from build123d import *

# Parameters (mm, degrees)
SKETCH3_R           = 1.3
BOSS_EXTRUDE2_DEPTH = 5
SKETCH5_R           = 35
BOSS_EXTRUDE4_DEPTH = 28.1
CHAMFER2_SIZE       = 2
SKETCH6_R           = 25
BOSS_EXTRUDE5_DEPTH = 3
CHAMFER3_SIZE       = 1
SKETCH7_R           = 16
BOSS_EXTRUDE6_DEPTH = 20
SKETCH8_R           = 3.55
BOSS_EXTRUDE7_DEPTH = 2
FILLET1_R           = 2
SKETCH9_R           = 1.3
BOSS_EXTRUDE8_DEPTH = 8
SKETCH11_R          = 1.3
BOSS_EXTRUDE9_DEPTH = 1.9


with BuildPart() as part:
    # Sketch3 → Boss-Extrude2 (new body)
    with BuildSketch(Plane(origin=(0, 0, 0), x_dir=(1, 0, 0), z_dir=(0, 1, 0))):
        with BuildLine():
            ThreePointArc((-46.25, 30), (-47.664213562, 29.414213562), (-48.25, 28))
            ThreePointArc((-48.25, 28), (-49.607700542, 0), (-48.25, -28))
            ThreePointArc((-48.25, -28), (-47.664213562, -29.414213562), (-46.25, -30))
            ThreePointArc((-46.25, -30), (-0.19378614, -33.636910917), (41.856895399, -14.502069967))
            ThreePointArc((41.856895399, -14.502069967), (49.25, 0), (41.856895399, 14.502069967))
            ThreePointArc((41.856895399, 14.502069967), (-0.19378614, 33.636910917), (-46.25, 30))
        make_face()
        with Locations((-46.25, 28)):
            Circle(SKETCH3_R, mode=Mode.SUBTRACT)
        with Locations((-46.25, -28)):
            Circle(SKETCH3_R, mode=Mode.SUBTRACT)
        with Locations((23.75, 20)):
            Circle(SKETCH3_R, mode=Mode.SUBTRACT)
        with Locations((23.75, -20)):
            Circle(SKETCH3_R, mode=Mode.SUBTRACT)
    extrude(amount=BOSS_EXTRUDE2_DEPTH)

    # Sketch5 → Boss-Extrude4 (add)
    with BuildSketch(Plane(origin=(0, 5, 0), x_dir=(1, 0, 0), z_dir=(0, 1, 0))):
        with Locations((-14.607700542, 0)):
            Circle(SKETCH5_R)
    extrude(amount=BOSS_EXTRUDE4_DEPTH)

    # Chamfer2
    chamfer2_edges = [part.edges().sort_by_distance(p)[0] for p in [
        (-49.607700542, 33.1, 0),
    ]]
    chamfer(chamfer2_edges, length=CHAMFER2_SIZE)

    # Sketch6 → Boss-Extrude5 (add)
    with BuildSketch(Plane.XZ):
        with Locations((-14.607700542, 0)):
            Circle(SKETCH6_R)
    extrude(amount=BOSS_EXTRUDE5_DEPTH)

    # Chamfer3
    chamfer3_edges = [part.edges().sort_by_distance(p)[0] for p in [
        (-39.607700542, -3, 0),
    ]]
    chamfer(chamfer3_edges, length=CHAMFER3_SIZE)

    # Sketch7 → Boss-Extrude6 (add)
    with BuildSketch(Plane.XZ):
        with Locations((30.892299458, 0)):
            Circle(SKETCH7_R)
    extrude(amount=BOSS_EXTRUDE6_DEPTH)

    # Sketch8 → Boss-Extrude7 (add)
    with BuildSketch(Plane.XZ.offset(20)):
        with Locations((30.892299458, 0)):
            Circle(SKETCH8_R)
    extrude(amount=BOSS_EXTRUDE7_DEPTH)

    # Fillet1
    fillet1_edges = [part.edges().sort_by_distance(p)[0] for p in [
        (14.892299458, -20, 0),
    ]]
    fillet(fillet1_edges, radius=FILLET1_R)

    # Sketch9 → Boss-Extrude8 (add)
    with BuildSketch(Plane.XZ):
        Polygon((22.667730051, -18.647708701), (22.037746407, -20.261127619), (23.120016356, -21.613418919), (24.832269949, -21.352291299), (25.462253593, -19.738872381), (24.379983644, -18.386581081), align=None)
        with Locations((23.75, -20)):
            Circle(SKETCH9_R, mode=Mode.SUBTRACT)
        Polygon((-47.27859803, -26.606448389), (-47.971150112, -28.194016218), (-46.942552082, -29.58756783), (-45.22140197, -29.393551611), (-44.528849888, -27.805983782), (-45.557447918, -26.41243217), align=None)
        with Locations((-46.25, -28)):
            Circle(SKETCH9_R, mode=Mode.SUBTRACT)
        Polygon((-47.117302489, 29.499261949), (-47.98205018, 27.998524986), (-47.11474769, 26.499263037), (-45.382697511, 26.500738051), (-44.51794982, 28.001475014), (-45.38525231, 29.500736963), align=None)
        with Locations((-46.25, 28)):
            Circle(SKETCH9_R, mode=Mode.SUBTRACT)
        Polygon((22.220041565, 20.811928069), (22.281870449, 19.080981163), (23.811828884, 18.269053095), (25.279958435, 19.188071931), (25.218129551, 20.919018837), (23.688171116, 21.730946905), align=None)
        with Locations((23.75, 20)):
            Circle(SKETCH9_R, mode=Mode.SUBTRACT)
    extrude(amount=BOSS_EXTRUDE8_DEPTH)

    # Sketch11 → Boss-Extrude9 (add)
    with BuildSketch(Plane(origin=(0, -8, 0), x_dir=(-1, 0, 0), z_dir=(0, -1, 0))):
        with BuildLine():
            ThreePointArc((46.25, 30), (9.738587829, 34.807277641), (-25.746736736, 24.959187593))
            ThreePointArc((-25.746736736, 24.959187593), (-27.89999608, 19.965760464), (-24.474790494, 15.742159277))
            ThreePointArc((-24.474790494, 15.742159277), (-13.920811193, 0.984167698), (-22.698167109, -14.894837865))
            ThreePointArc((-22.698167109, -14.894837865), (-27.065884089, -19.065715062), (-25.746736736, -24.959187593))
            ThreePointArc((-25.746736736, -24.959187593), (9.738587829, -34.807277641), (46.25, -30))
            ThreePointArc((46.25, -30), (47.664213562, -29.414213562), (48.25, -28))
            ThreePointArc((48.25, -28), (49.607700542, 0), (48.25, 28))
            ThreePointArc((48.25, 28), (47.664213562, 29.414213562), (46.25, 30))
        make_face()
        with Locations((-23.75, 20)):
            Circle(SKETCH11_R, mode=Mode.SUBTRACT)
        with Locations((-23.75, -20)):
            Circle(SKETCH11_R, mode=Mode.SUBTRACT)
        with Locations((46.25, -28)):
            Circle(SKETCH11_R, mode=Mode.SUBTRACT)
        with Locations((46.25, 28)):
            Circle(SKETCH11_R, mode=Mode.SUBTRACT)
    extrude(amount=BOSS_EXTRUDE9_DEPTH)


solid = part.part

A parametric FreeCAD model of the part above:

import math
import FreeCAD as App
import Part
import Sketcher
from FreeCAD import Vector


def edges_at(feature, points):
    """Names of the edges that pass closest to the given points."""
    edges = feature.Shape.Edges
    near = lambda p: min(range(len(edges)), key=lambda i: edges[i].distToShape(Part.Vertex(*p))[0])
    return sorted({f"Edge{near(p) + 1}" for p in points})


def add_polygon(sketch, points):
    """Adds a closed chain of lines whose ends are joined by coincident constraints."""
    first, n = sketch.GeometryCount, len(points)
    for a, b in zip(points, points[1:] + points[:1]):
        sketch.addGeometry(Part.LineSegment(App.Vector(*a, 0), App.Vector(*b, 0)), False)
    for i in range(n):
        sketch.addConstraint(Sketcher.Constraint("Coincident", first + i, 2, first + (i + 1) % n, 1))

doc = App.newDocument("Part")
body = doc.addObject("PartDesign::Body", "Body")

# Sketch on XZ plane
sketch1 = doc.addObject("Sketcher::SketchObject", "Sketch")
body.addObject(sketch1)
sketch1.AttachmentSupport = (doc.XZ_Plane, [""])
sketch1.MapMode = "FlatFace"
sketch1.addGeometry(Part.ArcOfCircle(Part.Circle(Vector(-46.2, -28, 0), Vector(0, 0, 1), 2), math.radians(-180), math.radians(-90)), False)
sketch1.addGeometry(Part.ArcOfCircle(Part.Circle(Vector(239.8, 0, 0), Vector(0, 0, 1), 289.4), math.radians(174.45), math.radians(185.55)), False)
sketch1.addGeometry(Part.ArcOfCircle(Part.Circle(Vector(-46.2, 28, 0), Vector(0, 0, 1), 2), math.radians(90), math.radians(180)), False)
sketch1.addGeometry(Part.ArcOfCircle(Part.Circle(Vector(-16.2, -57.3, 0), Vector(0, 0, 1), 92.3), math.radians(51), math.radians(109)), False)
sketch1.addGeometry(Part.ArcOfCircle(Part.Circle(Vector(31.3, 0, 0), Vector(0, 0, 1), 17.9), math.radians(-54), math.radians(54)), False)
sketch1.addGeometry(Part.ArcOfCircle(Part.Circle(Vector(-16.2, 57.3, 0), Vector(0, 0, 1), 92.3), math.radians(-109), math.radians(-51)), False)
sketch1.addGeometry(Part.Circle(Vector(-46.2, 28, 0), Vector(0, 0, 1), 1.3), False)
sketch1.addGeometry(Part.Circle(Vector(23.8, 20, 0), Vector(0, 0, 1), 1.3), False)
sketch1.addGeometry(Part.Circle(Vector(-46.2, -28, 0), Vector(0, 0, 1), 1.3), False)
sketch1.addGeometry(Part.Circle(Vector(23.8, -20, 0), Vector(0, 0, 1), 1.3), False)
sketch1.addConstraint(Sketcher.Constraint("Coincident", 0, 1, 1, 2))
sketch1.addConstraint(Sketcher.Constraint("Coincident", 1, 1, 2, 2))
sketch1.addConstraint(Sketcher.Constraint("Coincident", 2, 1, 3, 2))
sketch1.addConstraint(Sketcher.Constraint("Coincident", 3, 1, 4, 2))
sketch1.addConstraint(Sketcher.Constraint("Coincident", 4, 1, 5, 2))
sketch1.addConstraint(Sketcher.Constraint("Coincident", 5, 1, 0, 2))
sketch1.addConstraint(Sketcher.Constraint("Coincident", 6, 3, 2, 3))
sketch1.addConstraint(Sketcher.Constraint("Coincident", 8, 3, 0, 3))
sketch1.addConstraint(Sketcher.Constraint("Equal", 0, 2))
sketch1.addConstraint(Sketcher.Constraint("Equal", 3, 5))
sketch1.addConstraint(Sketcher.Constraint("Equal", 6, 7))
sketch1.addConstraint(Sketcher.Constraint("Equal", 7, 8))
sketch1.addConstraint(Sketcher.Constraint("Equal", 8, 9))
sketch1.addConstraint(Sketcher.Constraint("Symmetric", 0, 3, 2, 3, -1))
sketch1.addConstraint(Sketcher.Constraint("Symmetric", 3, 3, 5, 3, -1))
sketch1.addConstraint(Sketcher.Constraint("Symmetric", 7, 3, 9, 3, -1))
sketch1.addConstraint(Sketcher.Constraint("PointOnObject", 1, 3, -1))
sketch1.addConstraint(Sketcher.Constraint("PointOnObject", 4, 3, -1))
sketch1.addConstraint(Sketcher.Constraint("Horizontal", 8, 3, 0, 1))
sketch1.addConstraint(Sketcher.Constraint("Vertical", 8, 3, 2, 1))
sketch1.addConstraint(Sketcher.Constraint("Radius", 0, 2.0))
sketch1.addConstraint(Sketcher.Constraint("Diameter", 6, 2.6))
sketch1.addConstraint(Sketcher.Constraint("DistanceY", 0, 3, -1, 1, 28.0))
sketch1.addConstraint(Sketcher.Constraint("DistanceY", -1, 1, 7, 3, 20.0))
sketch1.addConstraint(Sketcher.Constraint("DistanceX", 2, 3, 7, 3, 70.0))
sketch1.addConstraint(Sketcher.Constraint("DistanceX", 0, 3, -1, 1, 46.25))
sketch1.addConstraint(Sketcher.Constraint("Radius", 1, 289.402312))
sketch1.addConstraint(Sketcher.Constraint("Radius", 3, 92.313021))
sketch1.addConstraint(Sketcher.Constraint("Radius", 4, 17.919943))
sketch1.addConstraint(Sketcher.Constraint("DistanceX", 3, 3, -1, 1, 16.18605))
sketch1.addConstraint(Sketcher.Constraint("DistanceY", -1, 1, 3, 1, 14.50207))
pad1 = doc.addObject("PartDesign::Pad", "Pad")
body.addObject(pad1)
pad1.Profile = sketch1
pad1.Length = 5
pad1.Reversed = True

# Sketch on XZ plane
sketch2 = doc.addObject("Sketcher::SketchObject", "Sketch001")
body.addObject(sketch2)
sketch2.AttachmentSupport = (doc.XZ_Plane, [""])
sketch2.MapMode = "FlatFace"
sketch2.AttachmentOffset = App.Placement(Vector(0, 0, -5), App.Rotation())
sketch2.addGeometry(Part.Circle(Vector(-15, 0, 0), Vector(0, 0, 1), 35), False)
sketch2.addConstraint(Sketcher.Constraint("PointOnObject", 0, 3, -1))
sketch2.addConstraint(Sketcher.Constraint("Diameter", 0, 70.0))
sketch2.addConstraint(Sketcher.Constraint("DistanceX", 0, 3, -1, 1, 14.607701))
pad2 = doc.addObject("PartDesign::Pad", "Pad001")
body.addObject(pad2)
pad2.Profile = sketch2
pad2.Length = 28.1
pad2.Reversed = True
doc.recompute()

chamfer = doc.addObject("PartDesign::Chamfer", "Chamfer")
body.addObject(chamfer)
chamfer.Base = (pad2, edges_at(pad2, [(-49.608, 33.1, 0)]))
chamfer.Size = 2

# Sketch on XZ plane
sketch3 = doc.addObject("Sketcher::SketchObject", "Sketch002")
body.addObject(sketch3)
sketch3.AttachmentSupport = (doc.XZ_Plane, [""])
sketch3.MapMode = "FlatFace"
sketch3.addGeometry(Part.Circle(Vector(-15, 0, 0), Vector(0, 0, 1), 25), False)
sketch3.addConstraint(Sketcher.Constraint("PointOnObject", 0, 3, -1))
sketch3.addConstraint(Sketcher.Constraint("Diameter", 0, 50.0))
sketch3.addConstraint(Sketcher.Constraint("DistanceX", 0, 3, -1, 1, 14.607701))
pad3 = doc.addObject("PartDesign::Pad", "Pad002")
body.addObject(pad3)
pad3.Profile = sketch3
pad3.Length = 3
doc.recompute()

chamfer2 = doc.addObject("PartDesign::Chamfer", "Chamfer001")
body.addObject(chamfer2)
chamfer2.Base = (pad3, edges_at(pad3, [(-39.608, -3, 0)]))
chamfer2.Size = 1

# Sketch on XZ plane
sketch4 = doc.addObject("Sketcher::SketchObject", "Sketch003")
body.addObject(sketch4)
sketch4.AttachmentSupport = (doc.XZ_Plane, [""])
sketch4.MapMode = "FlatFace"
sketch4.addGeometry(Part.Circle(Vector(31, 0, 0), Vector(0, 0, 1), 16), False)
sketch4.addConstraint(Sketcher.Constraint("PointOnObject", 0, 3, -1))
sketch4.addConstraint(Sketcher.Constraint("Diameter", 0, 32.0))
sketch4.addConstraint(Sketcher.Constraint("DistanceX", -1, 1, 0, 3, 30.892299))
pad4 = doc.addObject("PartDesign::Pad", "Pad003")
body.addObject(pad4)
pad4.Profile = sketch4
pad4.Length = 20

# Sketch on XZ plane
sketch5 = doc.addObject("Sketcher::SketchObject", "Sketch004")
body.addObject(sketch5)
sketch5.AttachmentSupport = (doc.XZ_Plane, [""])
sketch5.MapMode = "FlatFace"
sketch5.AttachmentOffset = App.Placement(Vector(0, 0, 20), App.Rotation())
sketch5.addGeometry(Part.Circle(Vector(30.9, 0, 0), Vector(0, 0, 1), 3.5), False)
sketch5.addConstraint(Sketcher.Constraint("PointOnObject", 0, 3, -1))
sketch5.addConstraint(Sketcher.Constraint("Diameter", 0, 7.1))
sketch5.addConstraint(Sketcher.Constraint("DistanceX", -1, 1, 0, 3, 30.892299))
pad5 = doc.addObject("PartDesign::Pad", "Pad004")
body.addObject(pad5)
pad5.Profile = sketch5
pad5.Length = 2
doc.recompute()

fillet = doc.addObject("PartDesign::Fillet", "Fillet")
body.addObject(fillet)
fillet.Base = (pad5, edges_at(pad5, [(14.892, -20, 0)]))
fillet.Radius = 2

# Sketch on XZ plane
sketch6 = doc.addObject("Sketcher::SketchObject", "Sketch005")
body.addObject(sketch6)
sketch6.AttachmentSupport = (doc.XZ_Plane, [""])
sketch6.MapMode = "FlatFace"
add_polygon(sketch6, [(22.66773, -18.647709), (22.037746, -20.261128), (23.120016, -21.613419), (24.83227, -21.352291), (25.462254, -19.738872), (24.379984, -18.386581)])  # lines 0-5
sketch6.addGeometry(Part.Circle(Vector(23.75, -20, 0), Vector(0, 0, 1), 1.3), False)  # 6
add_polygon(sketch6, [(-47.278598, -26.606448), (-47.97115, -28.194016), (-46.942552, -29.587568), (-45.221402, -29.393552), (-44.52885, -27.805984), (-45.557448, -26.412432)])  # lines 7-12
sketch6.addGeometry(Part.Circle(Vector(-46.25, -28, 0), Vector(0, 0, 1), 1.3), False)  # 13
add_polygon(sketch6, [(-47.117302, 29.499262), (-47.98205, 27.998525), (-47.114748, 26.499263), (-45.382698, 26.500738), (-44.51795, 28.001475), (-45.385252, 29.500737)])  # lines 14-19
sketch6.addGeometry(Part.Circle(Vector(-46.25, 28, 0), Vector(0, 0, 1), 1.3), False)  # 20
add_polygon(sketch6, [(22.220042, 20.811928), (22.28187, 19.080981), (23.811829, 18.269053), (25.279958, 19.188072), (25.21813, 20.919019), (23.688171, 21.730947)])  # lines 21-26
sketch6.addGeometry(Part.Circle(Vector(23.75, 20, 0), Vector(0, 0, 1), 1.3), False)  # 27
sketch6.addConstraint(Sketcher.Constraint("Diameter", 6, 2.6))
sketch6.addConstraint(Sketcher.Constraint("Diameter", 13, 2.6))
sketch6.addConstraint(Sketcher.Constraint("Diameter", 20, 2.6))
sketch6.addConstraint(Sketcher.Constraint("Diameter", 27, 2.6))
sketch6.addConstraint(Sketcher.Constraint("DistanceY", 6, 3, -1, 1, 20.0))
sketch6.addConstraint(Sketcher.Constraint("DistanceY", 13, 3, -1, 1, 28.0))
sketch6.addConstraint(Sketcher.Constraint("DistanceY", -1, 1, 20, 3, 28.0))
sketch6.addConstraint(Sketcher.Constraint("DistanceY", -1, 1, 27, 3, 20.0))
sketch6.addConstraint(Sketcher.Constraint("DistanceX", 13, 3, 6, 3, 70.0))
sketch6.addConstraint(Sketcher.Constraint("DistanceX", 20, 3, 6, 3, 70.0))
sketch6.addConstraint(Sketcher.Constraint("DistanceX", 20, 3, 27, 3, 70.0))
sketch6.addConstraint(Sketcher.Constraint("DistanceY", 16, 2, 18, 2, 2.999999))
sketch6.addConstraint(Sketcher.Constraint("DistanceY", 15, 2, 19, 2, 2.999999))
sketch6.addConstraint(Sketcher.Constraint("DistanceX", -1, 1, 6, 3, 23.75))
sketch6.addConstraint(Sketcher.Constraint("DistanceX", 9, 2, -1, 1, 45.221402))
sketch6.addConstraint(Sketcher.Constraint("DistanceX", 12, 2, -1, 1, 47.278598))
sketch6.addConstraint(Sketcher.Constraint("DistanceX", 7, 2, 8, 2, 1.028598))
sketch6.addConstraint(Sketcher.Constraint("DistanceX", 8, 2, 0, 2, 68.980298))
sketch6.addConstraint(Sketcher.Constraint("DistanceX", 7, 2, 10, 2, 3.4423))
sketch6.addConstraint(Sketcher.Constraint("DistanceX", 11, 2, 10, 2, 1.028598))
sketch6.addConstraint(Sketcher.Constraint("DistanceX", 14, 2, 10, 2, 3.4532))
sketch6.addConstraint(Sketcher.Constraint("DistanceX", 15, 2, 11, 2, 1.5573))
sketch6.addConstraint(Sketcher.Constraint("DistanceX", 12, 2, 16, 2, 1.895901))
sketch6.addConstraint(Sketcher.Constraint("DistanceX", 14, 2, 17, 2, 3.4641))
sketch6.addConstraint(Sketcher.Constraint("DistanceX", 5, 2, 22, 2, 1.144099))
sketch6.addConstraint(Sketcher.Constraint("DistanceX", 22, 2, 24, 2, 1.406301))
sketch6.addConstraint(Sketcher.Constraint("DistanceY", 4, 2, 24, 2, 39.3056))
sketch6.addConstraint(Sketcher.Constraint("DistanceX", 21, 2, 25, 2, 1.406301))
sketch6.addConstraint(Sketcher.Constraint("Distance", 0, 1.732051))
sketch6.addConstraint(Sketcher.Constraint("Distance", 1, 1.732051))
sketch6.addConstraint(Sketcher.Constraint("Distance", 2, 1.732051))
sketch6.addConstraint(Sketcher.Constraint("Distance", 3, 1.732051))
sketch6.addConstraint(Sketcher.Constraint("Distance", 4, 1.732051))
sketch6.addConstraint(Sketcher.Constraint("Distance", 5, 1.732051))
sketch6.addConstraint(Sketcher.Constraint("Distance", 7, 1.732051))
sketch6.addConstraint(Sketcher.Constraint("Distance", 8, 1.732051))
sketch6.addConstraint(Sketcher.Constraint("Distance", 9, 1.732051))
sketch6.addConstraint(Sketcher.Constraint("Distance", 10, 1.732051))
sketch6.addConstraint(Sketcher.Constraint("Distance", 11, 1.732051))
sketch6.addConstraint(Sketcher.Constraint("Distance", 12, 1.732051))
sketch6.addConstraint(Sketcher.Constraint("Distance", 14, 1.732051))
sketch6.addConstraint(Sketcher.Constraint("Distance", 15, 1.732051))
sketch6.addConstraint(Sketcher.Constraint("Distance", 17, 1.732051))
sketch6.addConstraint(Sketcher.Constraint("Distance", 18, 1.732051))
sketch6.addConstraint(Sketcher.Constraint("Distance", 21, 1.732051))
sketch6.addConstraint(Sketcher.Constraint("Distance", 22, 1.732051))
sketch6.addConstraint(Sketcher.Constraint("Distance", 23, 1.732051))
sketch6.addConstraint(Sketcher.Constraint("Distance", 24, 1.732051))
sketch6.addConstraint(Sketcher.Constraint("Distance", 25, 1.732051))
sketch6.addConstraint(Sketcher.Constraint("Distance", 26, 1.732051))
sketch6.addConstraint(Sketcher.Constraint("DistanceY", 1, 2, -1, 1, 21.613419))
sketch6.addConstraint(Sketcher.Constraint("DistanceX", -1, 1, 2, 2, 24.83227))
sketch6.addConstraint(Sketcher.Constraint("DistanceY", 2, 2, -1, 1, 21.352291))
sketch6.addConstraint(Sketcher.Constraint("DistanceY", 4, 2, -1, 1, 18.386581))
sketch6.addConstraint(Sketcher.Constraint("DistanceX", -1, 1, 5, 2, 22.66773))
sketch6.addConstraint(Sketcher.Constraint("DistanceY", 9, 2, -1, 1, 29.393552))
sketch6.addConstraint(Sketcher.Constraint("DistanceY", -1, 1, 16, 2, 26.500738))
sketch6.addConstraint(Sketcher.Constraint("DistanceY", -1, 1, 19, 2, 29.499262))
sketch6.addConstraint(Sketcher.Constraint("DistanceX", -1, 1, 21, 2, 22.28187))
sketch6.addConstraint(Sketcher.Constraint("DistanceY", -1, 1, 21, 2, 19.080981))
pad6 = doc.addObject("PartDesign::Pad", "Pad005")
body.addObject(pad6)
pad6.Profile = sketch6
pad6.Length = 8

# Sketch on XZ plane
sketch7 = doc.addObject("Sketcher::SketchObject", "Sketch006")
body.addObject(sketch7)
sketch7.AttachmentSupport = (doc.XZ_Plane, [""])
sketch7.MapMode = "FlatFace"
sketch7.AttachmentOffset = App.Placement(Vector(0, 0, 8), App.Rotation())
sketch7.addGeometry(Part.ArcOfCircle(Part.Circle(Vector(-16.18605, 57.280311, 0), Vector(0, 0, 1), 92.313021), math.radians(-109.006413), math.radians(-62.983592)), False)
sketch7.addGeometry(Part.ArcOfCircle(Part.Circle(Vector(22.698167, -20.683611, 0), Vector(0, 0, 1), 5.251127), math.radians(-54.51039), math.radians(70.224727)), False)
sketch7.addGeometry(Part.ArcOfCircle(Part.Circle(Vector(30.892299, 0, 0), Vector(0, 0, 1), 17), math.radians(118.816616), math.radians(247.821055)), False)
sketch7.addGeometry(Part.ArcOfCircle(Part.Circle(Vector(21.191313, 20.845168, 0), Vector(0, 0, 1), 6.138163), math.radians(-75.789238), math.radians(42.085302)), False)
sketch7.addGeometry(Part.ArcOfCircle(Part.Circle(Vector(-16.18605, -57.280311, 0), Vector(0, 0, 1), 92.313021), math.radians(62.983592), math.radians(109.006413)), False)
sketch7.addGeometry(Part.ArcOfCircle(Part.Circle(Vector(-46.25, 28, 0), Vector(0, 0, 1), 2), math.radians(90), math.radians(180)), False)
sketch7.addGeometry(Part.ArcOfCircle(Part.Circle(Vector(239.794611, 0, 0), Vector(0, 0, 1), 289.402312), math.radians(174.447884), math.radians(185.552116)), False)
sketch7.addGeometry(Part.ArcOfCircle(Part.Circle(Vector(-46.25, -28, 0), Vector(0, 0, 1), 2), math.radians(-180), math.radians(-90)), False)
sketch7.addGeometry(Part.Circle(Vector(23.75, 20, 0), Vector(0, 0, 1), 1.3), False)
sketch7.addGeometry(Part.Circle(Vector(-46.25, 28, 0), Vector(0, 0, 1), 1.3), False)
sketch7.addGeometry(Part.Circle(Vector(23.75, -20, 0), Vector(0, 0, 1), 1.3), False)
sketch7.addGeometry(Part.Circle(Vector(-46.25, -28, 0), Vector(0, 0, 1), 1.3), False)
sketch7.addConstraint(Sketcher.Constraint("Coincident", 0, 2, 1, 1))
sketch7.addConstraint(Sketcher.Constraint("Coincident", 1, 2, 2, 2))
sketch7.addConstraint(Sketcher.Constraint("Coincident", 2, 1, 3, 1))
sketch7.addConstraint(Sketcher.Constraint("Coincident", 3, 2, 4, 1))
sketch7.addConstraint(Sketcher.Constraint("Coincident", 4, 2, 5, 1))
sketch7.addConstraint(Sketcher.Constraint("Coincident", 5, 2, 6, 1))
sketch7.addConstraint(Sketcher.Constraint("Coincident", 6, 2, 7, 1))
sketch7.addConstraint(Sketcher.Constraint("Coincident", 7, 2, 0, 1))
sketch7.addConstraint(Sketcher.Constraint("Coincident", 9, 3, 5, 3))
sketch7.addConstraint(Sketcher.Constraint("Coincident", 11, 3, 7, 3))
sketch7.addConstraint(Sketcher.Constraint("PointOnObject", 2, 3, -1))
sketch7.addConstraint(Sketcher.Constraint("PointOnObject", 6, 3, -1))
sketch7.addConstraint(Sketcher.Constraint("Radius", 2, 17.0))
sketch7.addConstraint(Sketcher.Constraint("Radius", 5, 2.0))
sketch7.addConstraint(Sketcher.Constraint("Radius", 7, 2.0))
sketch7.addConstraint(Sketcher.Constraint("Diameter", 8, 2.6))
sketch7.addConstraint(Sketcher.Constraint("Diameter", 9, 2.6))
sketch7.addConstraint(Sketcher.Constraint("Diameter", 10, 2.6))
sketch7.addConstraint(Sketcher.Constraint("Diameter", 11, 2.6))
sketch7.addConstraint(Sketcher.Constraint("DistanceY", -1, 1, 5, 3, 28.0))
sketch7.addConstraint(Sketcher.Constraint("DistanceY", 7, 3, -1, 1, 28.0))
sketch7.addConstraint(Sketcher.Constraint("DistanceY", -1, 1, 8, 3, 20.0))
sketch7.addConstraint(Sketcher.Constraint("DistanceY", 10, 3, -1, 1, 20.0))
sketch7.addConstraint(Sketcher.Constraint("DistanceY", -1, 1, 5, 2, 28.0))
sketch7.addConstraint(Sketcher.Constraint("DistanceY", 6, 2, -1, 1, 28.0))
sketch7.addConstraint(Sketcher.Constraint("DistanceX", 5, 3, 8, 3, 70.0))
sketch7.addConstraint(Sketcher.Constraint("DistanceX", 5, 2, 4, 2, 2.0))
sketch7.addConstraint(Sketcher.Constraint("DistanceX", 6, 2, 7, 2, 2.0))
sketch7.addConstraint(Sketcher.Constraint("DistanceX", 5, 3, -1, 1, 46.25))
sketch7.addConstraint(Sketcher.Constraint("DistanceX", -1, 1, 10, 3, 23.75))
sketch7.addConstraint(Sketcher.Constraint("Radius", 0, 92.313021))
sketch7.addConstraint(Sketcher.Constraint("Radius", 4, 92.313021))
sketch7.addConstraint(Sketcher.Constraint("Radius", 6, 289.402312))
sketch7.addConstraint(Sketcher.Constraint("Radius", 1, 5.251127))
sketch7.addConstraint(Sketcher.Constraint("Radius", 3, 6.138163))
sketch7.addConstraint(Sketcher.Constraint("DistanceX", -1, 1, 2, 3, 30.892299))
sketch7.addConstraint(Sketcher.Constraint("DistanceY", 4, 3, 1, 3, 36.596701))
sketch7.addConstraint(Sketcher.Constraint("DistanceX", 3, 3, 6, 3, 218.603298))
sketch7.addConstraint(Sketcher.Constraint("DistanceX", 0, 3, -1, 1, 16.18605))
sketch7.addConstraint(Sketcher.Constraint("DistanceY", 1, 3, -1, 1, 20.683611))
sketch7.addConstraint(Sketcher.Constraint("DistanceY", -1, 1, 3, 3, 20.845168))
sketch7.addConstraint(Sketcher.Constraint("DistanceX", -1, 1, 1, 2, 24.47479))
pad7 = doc.addObject("PartDesign::Pad", "Pad006")
body.addObject(pad7)
pad7.Profile = sketch7
pad7.Length = 1.9

doc.recompute()
